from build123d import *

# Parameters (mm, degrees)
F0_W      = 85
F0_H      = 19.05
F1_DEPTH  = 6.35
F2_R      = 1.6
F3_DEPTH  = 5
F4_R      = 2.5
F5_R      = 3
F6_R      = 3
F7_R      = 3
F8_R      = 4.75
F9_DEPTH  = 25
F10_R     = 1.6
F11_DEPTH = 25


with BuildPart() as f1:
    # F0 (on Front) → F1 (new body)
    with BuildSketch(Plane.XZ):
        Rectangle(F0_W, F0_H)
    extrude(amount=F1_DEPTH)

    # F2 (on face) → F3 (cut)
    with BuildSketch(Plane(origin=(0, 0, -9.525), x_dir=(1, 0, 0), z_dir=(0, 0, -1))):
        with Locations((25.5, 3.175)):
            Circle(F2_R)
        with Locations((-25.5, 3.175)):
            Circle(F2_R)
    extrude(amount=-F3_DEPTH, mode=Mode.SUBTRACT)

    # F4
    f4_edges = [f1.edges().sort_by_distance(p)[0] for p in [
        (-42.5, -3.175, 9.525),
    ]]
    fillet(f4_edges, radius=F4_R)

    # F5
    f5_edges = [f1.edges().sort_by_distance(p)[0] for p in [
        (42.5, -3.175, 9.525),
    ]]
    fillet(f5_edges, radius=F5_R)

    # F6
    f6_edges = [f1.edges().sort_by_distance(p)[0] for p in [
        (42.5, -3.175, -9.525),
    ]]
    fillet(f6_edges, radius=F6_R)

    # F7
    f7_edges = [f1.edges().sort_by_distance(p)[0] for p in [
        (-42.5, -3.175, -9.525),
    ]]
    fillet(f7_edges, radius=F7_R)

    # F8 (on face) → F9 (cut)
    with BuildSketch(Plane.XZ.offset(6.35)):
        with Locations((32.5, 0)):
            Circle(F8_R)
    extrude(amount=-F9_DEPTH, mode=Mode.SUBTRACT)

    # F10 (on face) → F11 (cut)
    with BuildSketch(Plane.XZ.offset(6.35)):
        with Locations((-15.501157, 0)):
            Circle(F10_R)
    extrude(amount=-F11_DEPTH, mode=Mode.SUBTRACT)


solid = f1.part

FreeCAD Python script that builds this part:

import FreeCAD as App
import Part
import Sketcher


def edges_at(feature, points):
    """Names of the edges that pass closest to the given points."""
    edges = feature.Shape.Edges
    near = lambda p: min(range(len(edges)), key=lambda i: edges[i].distToShape(Part.Vertex(*p))[0])
    return sorted({f"Edge{near(p) + 1}" for p in points})


def add_polygon(sketch, points):
    """Adds a closed chain of lines whose ends are joined by coincident constraints."""
    first, n = sketch.GeometryCount, len(points)
    for a, b in zip(points, points[1:] + points[:1]):
        sketch.addGeometry(Part.LineSegment(App.Vector(*a, 0), App.Vector(*b, 0)), False)
    for i in range(n):
        sketch.addConstraint(Sketcher.Constraint("Coincident", first + i, 2, first + (i + 1) % n, 1))

doc = App.newDocument("Part")
params = doc.addObject("Spreadsheet::Sheet", "Params")
for row, (alias, value) in enumerate([
    ("sketch1_width", "85 mm"),
    ("sketch1_height", "19.05 mm"),
    ("pad1_length", "6.35 mm"),
    ("sketch2_diameter", "3.2 mm"),
    ("pocket1_length", "5 mm"),
    ("fillet_radius", "2.5 mm"),
    ("fillet2_radius", "3 mm"),
    ("fillet3_radius", "3 mm"),
    ("fillet4_radius", "3 mm"),
    ("sketch3_diameter", "9.5 mm"),
    ("pocket2_length", "25 mm"),
    ("sketch4_diameter", "3.2 mm"),
    ("pocket3_length", "25 mm"),
], start=1):
    params.set(f"A{row}", alias)
    params.set(f"B{row}", "=" + value)
    params.setAlias(f"B{row}", alias)

body = doc.addObject("PartDesign::Body", "Body")

sketch1 = body.newObject("Sketcher::SketchObject", "Sketch")
sketch1.AttachmentSupport = (doc.getObject("XZ_Plane"), [""])
sketch1.MapMode = "FlatFace"
add_polygon(sketch1, [(-42, 10), (-42, -10), (42, -10), (42, 10)])
sketch1.addConstraint([
    Sketcher.Constraint("Vertical", 0),
    Sketcher.Constraint("Horizontal", 1),
    Sketcher.Constraint("Vertical", 2),
    Sketcher.Constraint("Horizontal", 3),
    Sketcher.Constraint("Symmetric", 0, 2, 2, 2, -1, 1),
    Sketcher.Constraint("DistanceX", 1, 1, 1, 2, 85.0),
    Sketcher.Constraint("DistanceY", 0, 2, 0, 1, 19.05),
])
sketch1.setExpression("Constraints[9]", "Params.sketch1_width")
sketch1.setExpression("Constraints[10]", "Params.sketch1_height")
pad1 = body.newObject("PartDesign::Pad", "Pad")
pad1.Profile = sketch1
pad1.setExpression("Length", "Params.pad1_length")

sketch2 = body.newObject("Sketcher::SketchObject", "Sketch001")
sketch2.AttachmentSupport = (doc.getObject("XY_Plane"), [""])
sketch2.MapMode = "FlatFace"
sketch2.AttachmentOffset = App.Placement(App.Vector(0, 0, -9.525), App.Rotation())
sketch2.addGeometry([
    Part.Circle(App.Vector(25.5, -3.2, 0), App.Vector(0, 0, 1), 1.6),
    Part.Circle(App.Vector(-25.5, -3.2, 0), App.Vector(0, 0, 1), 1.6),
], False)
sketch2.addConstraint([
    Sketcher.Constraint("Equal", 0, 1),
    Sketcher.Constraint("Symmetric", 0, 3, 1, 3, -2),
    Sketcher.Constraint("Diameter", 0, 3.2),
    Sketcher.Constraint("DistanceX", 1, 3, 0, 3, 51.0),
    Sketcher.Constraint("DistanceY", 0, 3, -1, 1, 3.175),
])
sketch2.setExpression("Constraints[2]", "Params.sketch2_diameter")
pocket1 = body.newObject("PartDesign::Pocket", "Pocket")
pocket1.Profile = sketch2
pocket1.setExpression("Length", "Params.pocket1_length")
pocket1.Reversed = True
doc.recompute()

fillet = body.newObject("PartDesign::Fillet", "Fillet")
fillet.Base = (pocket1, edges_at(pocket1, [(-42.5, -3.175, 9.525)]))
fillet.setExpression("Radius", "Params.fillet_radius")
doc.recompute()

fillet2 = body.newObject("PartDesign::Fillet", "Fillet001")
fillet2.Base = (fillet, edges_at(fillet, [(42.5, -3.175, 9.525)]))
fillet2.setExpression("Radius", "Params.fillet2_radius")
doc.recompute()

fillet3 = body.newObject("PartDesign::Fillet", "Fillet002")
fillet3.Base = (fillet2, edges_at(fillet2, [(42.5, -3.175, -9.525)]))
fillet3.setExpression("Radius", "Params.fillet3_radius")
doc.recompute()

fillet4 = body.newObject("PartDesign::Fillet", "Fillet003")
fillet4.Base = (fillet3, edges_at(fillet3, [(-42.5, -3.175, -9.525)]))
fillet4.setExpression("Radius", "Params.fillet4_radius")

sketch3 = body.newObject("Sketcher::SketchObject", "Sketch002")
sketch3.AttachmentSupport = (doc.getObject("XZ_Plane"), [""])
sketch3.MapMode = "FlatFace"
sketch3.AttachmentOffset = App.Placement(App.Vector(0, 0, 6.35), App.Rotation())
sketch3.addGeometry(Part.Circle(App.Vector(32.5, 0, 0), App.Vector(0, 0, 1), 4.8), False)
sketch3.addConstraint([
    Sketcher.Constraint("PointOnObject", 0, 3, -1),
    Sketcher.Constraint("Diameter", 0, 9.5),
    Sketcher.Constraint("DistanceX", -1, 1, 0, 3, 32.5),
])
sketch3.setExpression("Constraints[1]", "Params.sketch3_diameter")
pocket2 = body.newObject("PartDesign::Pocket", "Pocket001")
pocket2.Profile = sketch3
pocket2.setExpression("Length", "Params.pocket2_length")

sketch4 = body.newObject("Sketcher::SketchObject", "Sketch003")
sketch4.AttachmentSupport = (doc.getObject("XZ_Plane"), [""])
sketch4.MapMode = "FlatFace"
sketch4.AttachmentOffset = App.Placement(App.Vector(0, 0, 6.35), App.Rotation())
sketch4.addGeometry(Part.Circle(App.Vector(-15.5, 0, 0), App.Vector(0, 0, 1), 1.6), False)
sketch4.addConstraint([
    Sketcher.Constraint("PointOnObject", 0, 3, -1),
    Sketcher.Constraint("Diameter", 0, 3.2),
    Sketcher.Constraint("DistanceX", 0, 3, -1, 1, 15.501157),
])
sketch4.setExpression("Constraints[1]", "Params.sketch4_diameter")
pocket3 = body.newObject("PartDesign::Pocket", "Pocket002")
pocket3.Profile = sketch4
pocket3.setExpression("Length", "Params.pocket3_length")

doc.recompute()
